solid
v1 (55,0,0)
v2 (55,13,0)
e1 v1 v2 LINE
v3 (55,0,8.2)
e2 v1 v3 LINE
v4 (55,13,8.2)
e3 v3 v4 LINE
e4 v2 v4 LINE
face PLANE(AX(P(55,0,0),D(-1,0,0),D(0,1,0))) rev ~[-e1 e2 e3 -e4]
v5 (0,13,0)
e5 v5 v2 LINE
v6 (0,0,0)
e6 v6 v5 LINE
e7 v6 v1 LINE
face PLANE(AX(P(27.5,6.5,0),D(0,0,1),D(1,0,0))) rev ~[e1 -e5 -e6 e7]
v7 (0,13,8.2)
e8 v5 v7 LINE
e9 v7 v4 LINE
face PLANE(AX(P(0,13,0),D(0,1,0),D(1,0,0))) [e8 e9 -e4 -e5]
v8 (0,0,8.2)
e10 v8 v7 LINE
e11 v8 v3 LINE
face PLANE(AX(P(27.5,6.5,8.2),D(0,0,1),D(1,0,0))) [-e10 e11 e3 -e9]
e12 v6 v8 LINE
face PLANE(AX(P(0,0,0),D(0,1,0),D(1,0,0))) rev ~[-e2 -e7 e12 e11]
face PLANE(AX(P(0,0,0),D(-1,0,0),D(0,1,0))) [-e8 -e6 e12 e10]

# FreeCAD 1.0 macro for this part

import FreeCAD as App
import Part
import Sketcher

V = App.Vector
Q = App.Units.Quantity


def add_polygon(sketch, points):
    """Adds a closed chain of lines whose ends are joined by coincident constraints."""
    first, n = sketch.GeometryCount, len(points)
    for a, b in zip(points, points[1:] + points[:1]):
        sketch.addGeometry(Part.LineSegment(App.Vector(*a, 0), App.Vector(*b, 0)), False)
    for i in range(n):
        sketch.addConstraint(Sketcher.Constraint("Coincident", first + i, 2, first + (i + 1) % n, 1))

doc = App.newDocument("Part")
body = doc.addObject("PartDesign::Body", "Body")

# Sketch on XY plane
sketch1 = doc.addObject("Sketcher::SketchObject", "Sketch")
body.addObject(sketch1)
sketch1.AttachmentSupport = (doc.XY_Plane, [""])
sketch1.MapMode = "FlatFace"
add_polygon(sketch1, [(0, 13), (0, 0), (55, 0), (55, 13)])  # lines 0-3
sketch1.addConstraint([
    Sketcher.Constraint("Vertical", 0),
    Sketcher.Constraint("Horizontal", 1),
    Sketcher.Constraint("Vertical", 2),
    Sketcher.Constraint("Horizontal", 3),
    Sketcher.Constraint("Coincident", 0, 2, -1, 1),
    Sketcher.Constraint("DistanceX", 1, 1, 1, 2, Q("55 mm")),
    Sketcher.Constraint("DistanceY", 0, 2, 0, 1, Q("13 mm")),
])
pad1 = doc.addObject("PartDesign::Pad", "Pad")
body.addObject(pad1)
pad1.Profile = sketch1
pad1.Length = 8.2

doc.recompute()
